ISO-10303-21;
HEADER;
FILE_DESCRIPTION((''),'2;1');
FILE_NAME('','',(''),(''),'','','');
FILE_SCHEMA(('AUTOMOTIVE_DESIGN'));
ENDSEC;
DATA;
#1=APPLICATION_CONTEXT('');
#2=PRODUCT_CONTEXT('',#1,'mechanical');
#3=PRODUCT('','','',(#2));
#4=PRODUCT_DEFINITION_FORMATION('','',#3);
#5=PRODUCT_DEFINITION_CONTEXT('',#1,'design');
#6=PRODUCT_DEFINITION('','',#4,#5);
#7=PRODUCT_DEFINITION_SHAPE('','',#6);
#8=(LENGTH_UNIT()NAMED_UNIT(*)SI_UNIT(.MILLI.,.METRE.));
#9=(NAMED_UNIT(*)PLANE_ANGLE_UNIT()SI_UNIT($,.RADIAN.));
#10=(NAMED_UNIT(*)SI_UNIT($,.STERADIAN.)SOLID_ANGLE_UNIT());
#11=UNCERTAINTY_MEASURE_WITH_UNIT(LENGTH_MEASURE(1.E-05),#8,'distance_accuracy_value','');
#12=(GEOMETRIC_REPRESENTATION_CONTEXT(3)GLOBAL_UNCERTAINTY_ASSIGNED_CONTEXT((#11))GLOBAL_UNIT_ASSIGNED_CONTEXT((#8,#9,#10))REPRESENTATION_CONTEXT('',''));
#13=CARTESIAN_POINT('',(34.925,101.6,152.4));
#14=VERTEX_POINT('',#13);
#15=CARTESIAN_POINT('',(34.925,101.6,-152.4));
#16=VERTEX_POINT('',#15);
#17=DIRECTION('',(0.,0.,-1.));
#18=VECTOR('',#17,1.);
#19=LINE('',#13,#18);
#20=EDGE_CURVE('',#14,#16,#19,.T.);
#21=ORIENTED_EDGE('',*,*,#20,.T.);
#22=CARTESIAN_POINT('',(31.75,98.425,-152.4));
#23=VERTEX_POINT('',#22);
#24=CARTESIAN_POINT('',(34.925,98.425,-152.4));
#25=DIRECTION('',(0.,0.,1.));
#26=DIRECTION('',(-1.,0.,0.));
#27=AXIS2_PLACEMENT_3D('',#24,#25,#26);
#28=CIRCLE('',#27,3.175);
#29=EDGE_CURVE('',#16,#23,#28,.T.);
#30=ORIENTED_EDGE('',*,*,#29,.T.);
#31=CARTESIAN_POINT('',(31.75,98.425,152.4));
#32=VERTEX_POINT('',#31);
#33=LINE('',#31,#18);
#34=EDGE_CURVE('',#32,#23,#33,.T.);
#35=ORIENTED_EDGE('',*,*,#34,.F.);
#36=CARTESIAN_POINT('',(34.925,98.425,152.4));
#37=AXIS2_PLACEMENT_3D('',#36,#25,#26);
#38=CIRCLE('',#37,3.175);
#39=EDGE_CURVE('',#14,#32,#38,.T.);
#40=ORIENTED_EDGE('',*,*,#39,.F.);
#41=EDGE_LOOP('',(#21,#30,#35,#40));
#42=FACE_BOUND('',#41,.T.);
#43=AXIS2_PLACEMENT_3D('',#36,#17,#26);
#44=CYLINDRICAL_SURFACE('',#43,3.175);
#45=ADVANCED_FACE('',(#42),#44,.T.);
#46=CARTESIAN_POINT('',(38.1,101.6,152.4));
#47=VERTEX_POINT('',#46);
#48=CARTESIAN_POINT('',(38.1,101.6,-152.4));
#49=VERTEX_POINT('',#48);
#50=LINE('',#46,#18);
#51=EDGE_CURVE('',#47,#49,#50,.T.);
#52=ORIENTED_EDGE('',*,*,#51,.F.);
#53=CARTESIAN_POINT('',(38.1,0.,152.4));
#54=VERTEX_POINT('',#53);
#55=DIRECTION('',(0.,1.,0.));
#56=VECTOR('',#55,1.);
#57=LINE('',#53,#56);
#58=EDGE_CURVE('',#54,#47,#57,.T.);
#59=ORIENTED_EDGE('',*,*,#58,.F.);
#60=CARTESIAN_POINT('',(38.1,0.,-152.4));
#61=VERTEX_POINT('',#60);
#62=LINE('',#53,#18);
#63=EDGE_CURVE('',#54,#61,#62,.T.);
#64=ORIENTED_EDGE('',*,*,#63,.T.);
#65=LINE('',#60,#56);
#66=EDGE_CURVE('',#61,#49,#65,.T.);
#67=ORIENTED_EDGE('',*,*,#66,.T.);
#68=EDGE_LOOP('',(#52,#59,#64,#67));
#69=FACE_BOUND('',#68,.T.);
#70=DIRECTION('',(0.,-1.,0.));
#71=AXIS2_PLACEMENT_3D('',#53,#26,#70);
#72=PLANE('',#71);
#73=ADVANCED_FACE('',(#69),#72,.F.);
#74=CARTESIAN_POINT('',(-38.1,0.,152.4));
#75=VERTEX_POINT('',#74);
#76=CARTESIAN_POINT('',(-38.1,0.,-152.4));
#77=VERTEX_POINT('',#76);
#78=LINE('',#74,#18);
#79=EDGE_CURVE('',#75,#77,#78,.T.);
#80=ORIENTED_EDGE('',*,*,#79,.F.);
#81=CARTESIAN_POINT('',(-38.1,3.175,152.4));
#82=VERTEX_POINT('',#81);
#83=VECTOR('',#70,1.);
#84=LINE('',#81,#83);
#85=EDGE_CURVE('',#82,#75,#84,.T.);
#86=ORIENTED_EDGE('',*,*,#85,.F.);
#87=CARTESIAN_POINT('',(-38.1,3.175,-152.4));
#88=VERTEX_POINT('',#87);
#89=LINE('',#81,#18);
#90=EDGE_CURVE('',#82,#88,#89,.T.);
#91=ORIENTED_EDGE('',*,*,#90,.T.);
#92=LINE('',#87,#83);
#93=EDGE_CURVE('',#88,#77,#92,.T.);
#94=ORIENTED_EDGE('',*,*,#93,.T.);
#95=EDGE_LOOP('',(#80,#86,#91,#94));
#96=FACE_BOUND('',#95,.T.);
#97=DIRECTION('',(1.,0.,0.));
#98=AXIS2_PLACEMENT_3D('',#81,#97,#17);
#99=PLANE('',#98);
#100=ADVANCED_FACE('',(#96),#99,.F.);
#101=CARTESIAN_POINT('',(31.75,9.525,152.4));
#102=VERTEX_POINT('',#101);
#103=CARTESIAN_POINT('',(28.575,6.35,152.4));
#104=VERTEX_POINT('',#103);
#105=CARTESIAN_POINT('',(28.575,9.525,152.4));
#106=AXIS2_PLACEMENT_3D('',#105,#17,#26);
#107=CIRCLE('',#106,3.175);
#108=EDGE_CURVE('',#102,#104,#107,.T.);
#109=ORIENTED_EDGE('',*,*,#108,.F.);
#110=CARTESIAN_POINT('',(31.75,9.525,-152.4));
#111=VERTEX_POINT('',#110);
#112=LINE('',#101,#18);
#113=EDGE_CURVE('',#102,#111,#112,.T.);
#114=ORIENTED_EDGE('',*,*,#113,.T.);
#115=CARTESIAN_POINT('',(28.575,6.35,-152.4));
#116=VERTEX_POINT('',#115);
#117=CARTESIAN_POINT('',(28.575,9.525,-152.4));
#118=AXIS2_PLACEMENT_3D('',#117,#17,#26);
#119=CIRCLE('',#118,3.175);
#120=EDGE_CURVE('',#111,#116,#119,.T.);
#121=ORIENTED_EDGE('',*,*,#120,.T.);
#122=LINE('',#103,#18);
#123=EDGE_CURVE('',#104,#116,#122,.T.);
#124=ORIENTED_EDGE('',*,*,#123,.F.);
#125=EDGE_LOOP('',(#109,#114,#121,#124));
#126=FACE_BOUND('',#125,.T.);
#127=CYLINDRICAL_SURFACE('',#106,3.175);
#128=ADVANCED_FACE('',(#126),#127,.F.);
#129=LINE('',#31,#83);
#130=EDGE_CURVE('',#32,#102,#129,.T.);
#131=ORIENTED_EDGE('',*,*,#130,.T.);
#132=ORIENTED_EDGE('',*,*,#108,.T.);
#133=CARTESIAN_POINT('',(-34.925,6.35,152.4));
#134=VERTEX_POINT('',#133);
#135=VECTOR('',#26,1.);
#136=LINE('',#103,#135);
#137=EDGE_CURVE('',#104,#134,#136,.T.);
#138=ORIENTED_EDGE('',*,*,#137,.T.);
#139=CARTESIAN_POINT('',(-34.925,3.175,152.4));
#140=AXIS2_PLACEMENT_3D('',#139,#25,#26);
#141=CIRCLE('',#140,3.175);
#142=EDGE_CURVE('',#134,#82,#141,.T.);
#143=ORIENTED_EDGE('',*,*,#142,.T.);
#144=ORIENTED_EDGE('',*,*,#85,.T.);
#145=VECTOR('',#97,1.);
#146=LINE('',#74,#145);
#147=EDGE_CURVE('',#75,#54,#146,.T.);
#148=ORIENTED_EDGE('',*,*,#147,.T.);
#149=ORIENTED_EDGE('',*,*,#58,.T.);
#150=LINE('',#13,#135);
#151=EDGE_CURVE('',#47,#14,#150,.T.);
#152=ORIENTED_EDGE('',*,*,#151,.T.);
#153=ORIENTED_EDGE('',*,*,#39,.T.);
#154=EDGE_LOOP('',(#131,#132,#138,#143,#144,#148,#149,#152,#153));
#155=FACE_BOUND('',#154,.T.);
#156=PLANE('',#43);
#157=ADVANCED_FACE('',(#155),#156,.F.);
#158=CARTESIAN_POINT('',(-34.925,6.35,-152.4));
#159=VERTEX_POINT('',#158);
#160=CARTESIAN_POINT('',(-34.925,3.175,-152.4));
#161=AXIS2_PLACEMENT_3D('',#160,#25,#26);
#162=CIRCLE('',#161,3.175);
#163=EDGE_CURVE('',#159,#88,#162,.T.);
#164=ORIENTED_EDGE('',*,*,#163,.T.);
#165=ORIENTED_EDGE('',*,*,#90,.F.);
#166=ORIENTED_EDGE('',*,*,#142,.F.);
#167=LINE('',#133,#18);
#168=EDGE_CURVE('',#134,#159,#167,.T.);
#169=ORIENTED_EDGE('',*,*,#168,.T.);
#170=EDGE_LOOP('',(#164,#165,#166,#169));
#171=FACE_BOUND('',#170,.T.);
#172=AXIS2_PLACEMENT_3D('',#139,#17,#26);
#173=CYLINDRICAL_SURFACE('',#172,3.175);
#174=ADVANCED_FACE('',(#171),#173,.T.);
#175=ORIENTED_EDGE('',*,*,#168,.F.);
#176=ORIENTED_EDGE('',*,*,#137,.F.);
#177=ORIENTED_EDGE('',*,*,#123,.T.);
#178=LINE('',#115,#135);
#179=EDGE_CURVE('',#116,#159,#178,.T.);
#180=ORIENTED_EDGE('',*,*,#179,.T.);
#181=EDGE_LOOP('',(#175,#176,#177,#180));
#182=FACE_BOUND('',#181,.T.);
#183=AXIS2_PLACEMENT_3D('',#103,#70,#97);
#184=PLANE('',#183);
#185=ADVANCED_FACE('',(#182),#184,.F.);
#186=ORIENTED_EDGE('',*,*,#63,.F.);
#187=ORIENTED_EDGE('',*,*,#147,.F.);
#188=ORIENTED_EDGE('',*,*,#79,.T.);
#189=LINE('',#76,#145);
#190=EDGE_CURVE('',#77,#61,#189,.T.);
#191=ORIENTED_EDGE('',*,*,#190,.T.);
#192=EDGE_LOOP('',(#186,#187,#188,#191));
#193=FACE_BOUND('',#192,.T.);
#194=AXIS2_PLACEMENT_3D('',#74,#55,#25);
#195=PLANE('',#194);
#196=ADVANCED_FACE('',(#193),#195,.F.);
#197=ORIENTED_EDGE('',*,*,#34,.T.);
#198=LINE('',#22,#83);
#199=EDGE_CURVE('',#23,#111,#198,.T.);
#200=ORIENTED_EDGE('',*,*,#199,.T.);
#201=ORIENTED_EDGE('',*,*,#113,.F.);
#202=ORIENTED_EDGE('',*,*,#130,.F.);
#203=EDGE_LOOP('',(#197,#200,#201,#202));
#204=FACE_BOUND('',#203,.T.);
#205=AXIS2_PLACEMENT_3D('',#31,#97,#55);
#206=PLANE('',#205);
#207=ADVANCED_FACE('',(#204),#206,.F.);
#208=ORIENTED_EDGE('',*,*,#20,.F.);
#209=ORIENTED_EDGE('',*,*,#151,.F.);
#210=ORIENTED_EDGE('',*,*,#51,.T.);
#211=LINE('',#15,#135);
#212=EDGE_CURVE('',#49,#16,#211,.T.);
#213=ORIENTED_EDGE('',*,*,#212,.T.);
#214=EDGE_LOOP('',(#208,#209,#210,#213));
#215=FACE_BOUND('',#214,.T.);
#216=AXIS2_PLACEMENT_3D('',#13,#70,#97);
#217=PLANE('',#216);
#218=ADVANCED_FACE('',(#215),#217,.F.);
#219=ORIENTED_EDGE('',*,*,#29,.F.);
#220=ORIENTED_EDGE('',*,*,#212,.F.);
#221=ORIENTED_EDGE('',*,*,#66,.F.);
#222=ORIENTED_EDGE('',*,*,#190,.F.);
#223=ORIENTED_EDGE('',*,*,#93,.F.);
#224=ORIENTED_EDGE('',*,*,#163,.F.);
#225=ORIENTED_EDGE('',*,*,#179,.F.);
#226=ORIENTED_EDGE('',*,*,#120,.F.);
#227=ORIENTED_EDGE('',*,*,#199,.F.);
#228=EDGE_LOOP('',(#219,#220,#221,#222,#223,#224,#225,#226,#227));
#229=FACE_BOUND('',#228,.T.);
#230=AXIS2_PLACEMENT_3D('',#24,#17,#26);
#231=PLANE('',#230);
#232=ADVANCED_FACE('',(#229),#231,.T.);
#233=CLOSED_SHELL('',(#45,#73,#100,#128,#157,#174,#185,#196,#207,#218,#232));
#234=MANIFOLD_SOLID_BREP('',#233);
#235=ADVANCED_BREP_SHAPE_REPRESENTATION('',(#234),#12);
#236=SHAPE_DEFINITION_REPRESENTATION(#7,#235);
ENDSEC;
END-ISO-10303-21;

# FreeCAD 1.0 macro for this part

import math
import FreeCAD as App
import Part
import Sketcher
Q = App.Units.Quantity

doc = App.newDocument("Part")
body = doc.addObject("PartDesign::Body", "Body")

sketch1 = body.newObject("Sketcher::SketchObject", "Sketch")
sketch1.AttachmentSupport = (doc.getObject("XY_Plane"), [""])
sketch1.MapMode = "FlatFace"
sketch1.addGeometry(Part.LineSegment(App.Vector(-38.1, 0, 0), App.Vector(38.1, 0, 0)), False)
sketch1.addGeometry(Part.LineSegment(App.Vector(38.1, 0, 0), App.Vector(38.1, 101.6, 0)), False)
sketch1.addGeometry(Part.LineSegment(App.Vector(38.1, 101.6, 0), App.Vector(34.9, 101.6, 0)), False)
sketch1.addGeometry(Part.ArcOfCircle(Part.Circle(App.Vector(34.9, 98.4, 0), App.Vector(0, 0, 1), 3.2), math.radians(90), math.radians(180)), False)
sketch1.addGeometry(Part.LineSegment(App.Vector(31.8, 98.4, 0), App.Vector(31.8, 9.5, 0)), False)
sketch1.addGeometry(Part.ArcOfCircle(Part.Circle(App.Vector(28.6, 9.5, 0), App.Vector(0, 0, 1), 3.2), math.radians(-90), math.radians(0)), False)
sketch1.addGeometry(Part.LineSegment(App.Vector(28.6, 6.3, 0), App.Vector(-34.9, 6.3, 0)), False)
sketch1.addGeometry(Part.ArcOfCircle(Part.Circle(App.Vector(-34.9, 3.2, 0), App.Vector(0, 0, 1), 3.2), math.radians(90), math.radians(180)), False)
sketch1.addGeometry(Part.LineSegment(App.Vector(-38.1, 3.2, 0), App.Vector(-38.1, 0, 0)), False)
sketch1.addConstraint(Sketcher.Constraint("Coincident", 0, 2, 1, 1))
sketch1.addConstraint(Sketcher.Constraint("Coincident", 1, 2, 2, 1))
sketch1.addConstraint(Sketcher.Constraint("Tangent", 2, 2, 3, 1))
sketch1.addConstraint(Sketcher.Constraint("Tangent", 3, 2, 4, 1))
sketch1.addConstraint(Sketcher.Constraint("Tangent", 4, 2, 5, 2))
sketch1.addConstraint(Sketcher.Constraint("Tangent", 5, 1, 6, 1))
sketch1.addConstraint(Sketcher.Constraint("Tangent", 6, 2, 7, 1))
sketch1.addConstraint(Sketcher.Constraint("Tangent", 7, 2, 8, 1))
sketch1.addConstraint(Sketcher.Constraint("Coincident", 8, 2, 0, 1))
sketch1.addConstraint(Sketcher.Constraint("Horizontal", 0))
sketch1.addConstraint(Sketcher.Constraint("Vertical", 1))
sketch1.addConstraint(Sketcher.Constraint("Horizontal", 2))
sketch1.addConstraint(Sketcher.Constraint("Vertical", 4))
sketch1.addConstraint(Sketcher.Constraint("Horizontal", 6))
sketch1.addConstraint(Sketcher.Constraint("Vertical", 8))
sketch1.addConstraint(Sketcher.Constraint("Equal", 3, 5))
sketch1.addConstraint(Sketcher.Constraint("Equal", 5, 7))
sketch1.addConstraint(Sketcher.Constraint("Symmetric", 0, 2, 8, 2, -1, 1))
sketch1.addConstraint(Sketcher.Constraint("Equal", 2, 8))
sketch1.addConstraint(Sketcher.Constraint("DistanceX", 0, 1, 0, 2, Q("3 in")))
sketch1.addConstraint(Sketcher.Constraint("DistanceY", 1, 1, 1, 2, Q("4 in")))
sketch1.addConstraint(Sketcher.Constraint("DistanceX", 6, 2, 6, 1, Q("2.5 in")))
sketch1.addConstraint(Sketcher.Constraint("Radius", 3, Q("0.125 in")))
pad1 = body.newObject("PartDesign::Pad", "Pad")
pad1.Profile = sketch1
pad1.Length = Q("12 in")
pad1.Midplane = True

doc.recompute()
